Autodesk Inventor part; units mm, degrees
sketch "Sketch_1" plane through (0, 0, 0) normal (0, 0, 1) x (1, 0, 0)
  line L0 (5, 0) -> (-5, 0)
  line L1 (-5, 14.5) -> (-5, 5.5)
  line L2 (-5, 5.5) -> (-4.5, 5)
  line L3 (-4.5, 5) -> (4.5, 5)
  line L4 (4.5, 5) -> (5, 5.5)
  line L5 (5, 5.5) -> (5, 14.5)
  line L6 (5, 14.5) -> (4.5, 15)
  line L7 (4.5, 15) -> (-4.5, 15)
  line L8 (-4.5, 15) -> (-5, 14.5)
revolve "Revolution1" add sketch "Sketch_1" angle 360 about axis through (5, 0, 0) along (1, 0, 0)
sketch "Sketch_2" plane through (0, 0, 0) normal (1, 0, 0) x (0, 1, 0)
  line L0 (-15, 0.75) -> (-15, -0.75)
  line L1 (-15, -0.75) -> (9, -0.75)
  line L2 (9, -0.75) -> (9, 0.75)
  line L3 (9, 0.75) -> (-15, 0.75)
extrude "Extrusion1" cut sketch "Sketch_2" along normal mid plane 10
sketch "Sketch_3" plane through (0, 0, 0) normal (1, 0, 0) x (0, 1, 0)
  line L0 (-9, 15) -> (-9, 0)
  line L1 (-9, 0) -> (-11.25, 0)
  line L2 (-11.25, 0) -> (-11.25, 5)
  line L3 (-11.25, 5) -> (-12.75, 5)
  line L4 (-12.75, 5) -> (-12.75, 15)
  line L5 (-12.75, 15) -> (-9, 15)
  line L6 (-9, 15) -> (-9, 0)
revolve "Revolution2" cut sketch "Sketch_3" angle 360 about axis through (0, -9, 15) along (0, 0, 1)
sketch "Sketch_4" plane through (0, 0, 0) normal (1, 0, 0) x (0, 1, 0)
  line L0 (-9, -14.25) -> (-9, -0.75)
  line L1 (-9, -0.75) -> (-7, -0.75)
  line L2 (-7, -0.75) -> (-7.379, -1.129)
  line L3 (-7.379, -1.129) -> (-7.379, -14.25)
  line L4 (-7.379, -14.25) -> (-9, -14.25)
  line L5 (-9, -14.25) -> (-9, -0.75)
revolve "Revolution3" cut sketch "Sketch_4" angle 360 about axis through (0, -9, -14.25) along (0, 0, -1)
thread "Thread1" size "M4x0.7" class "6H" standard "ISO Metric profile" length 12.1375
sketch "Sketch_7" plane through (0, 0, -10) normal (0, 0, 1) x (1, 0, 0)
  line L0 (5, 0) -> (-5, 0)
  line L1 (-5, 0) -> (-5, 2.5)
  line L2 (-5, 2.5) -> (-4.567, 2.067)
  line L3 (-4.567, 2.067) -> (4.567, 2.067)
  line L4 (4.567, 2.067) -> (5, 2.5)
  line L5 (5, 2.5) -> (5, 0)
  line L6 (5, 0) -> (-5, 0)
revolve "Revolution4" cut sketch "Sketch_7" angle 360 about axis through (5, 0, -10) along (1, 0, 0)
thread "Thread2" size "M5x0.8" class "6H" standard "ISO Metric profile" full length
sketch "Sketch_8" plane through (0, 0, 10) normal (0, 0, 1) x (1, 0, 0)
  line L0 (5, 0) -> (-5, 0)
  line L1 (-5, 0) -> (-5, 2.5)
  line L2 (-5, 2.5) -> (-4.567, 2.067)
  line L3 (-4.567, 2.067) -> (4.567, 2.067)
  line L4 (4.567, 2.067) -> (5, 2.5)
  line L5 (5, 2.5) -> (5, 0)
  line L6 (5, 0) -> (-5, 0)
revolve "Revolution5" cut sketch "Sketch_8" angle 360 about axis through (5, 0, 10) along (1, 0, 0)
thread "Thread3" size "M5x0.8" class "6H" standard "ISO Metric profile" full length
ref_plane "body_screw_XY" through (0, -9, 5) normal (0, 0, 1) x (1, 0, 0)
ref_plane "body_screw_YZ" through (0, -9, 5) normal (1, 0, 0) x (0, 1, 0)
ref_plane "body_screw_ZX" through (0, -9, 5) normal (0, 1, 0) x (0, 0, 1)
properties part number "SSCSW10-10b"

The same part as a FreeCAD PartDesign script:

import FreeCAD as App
import Part
import Sketcher
from FreeCAD import Vector
Q = App.Units.Quantity

doc = App.newDocument("Part")
body = doc.addObject("PartDesign::Body", "Body")

# Sketch on XY plane
sketch1 = body.newObject("Sketcher::SketchObject", "Sketch")
sketch1.AttachmentSupport = (doc.getObject("XY_Plane"), [""])
sketch1.MapMode = "FlatFace"
sketch1.addGeometry(Part.LineSegment(Vector(-4.5, 15, 0), Vector(-5, 14.5, 0)), False)
sketch1.addGeometry(Part.LineSegment(Vector(-5, 14.5, 0), Vector(-5, 5.5, 0)), False)
sketch1.addGeometry(Part.LineSegment(Vector(-5, 5.5, 0), Vector(-4.5, 5, 0)), False)
sketch1.addGeometry(Part.LineSegment(Vector(-4.5, 5, 0), Vector(4.5, 5, 0)), False)
sketch1.addGeometry(Part.LineSegment(Vector(4.5, 5, 0), Vector(5, 5.5, 0)), False)
sketch1.addGeometry(Part.LineSegment(Vector(5, 5.5, 0), Vector(5, 14.5, 0)), False)
sketch1.addGeometry(Part.LineSegment(Vector(5, 14.5, 0), Vector(4.5, 15, 0)), False)
sketch1.addGeometry(Part.LineSegment(Vector(4.5, 15, 0), Vector(-4.5, 15, 0)), False)
sketch1.addConstraint(Sketcher.Constraint("Coincident", 0, 2, 1, 1))
sketch1.addConstraint(Sketcher.Constraint("Coincident", 1, 2, 2, 1))
sketch1.addConstraint(Sketcher.Constraint("Coincident", 2, 2, 3, 1))
sketch1.addConstraint(Sketcher.Constraint("Coincident", 3, 2, 4, 1))
sketch1.addConstraint(Sketcher.Constraint("Coincident", 4, 2, 5, 1))
sketch1.addConstraint(Sketcher.Constraint("Coincident", 5, 2, 6, 1))
sketch1.addConstraint(Sketcher.Constraint("Coincident", 6, 2, 7, 1))
sketch1.addConstraint(Sketcher.Constraint("Coincident", 7, 2, 0, 1))
sketch1.addConstraint(Sketcher.Constraint("Vertical", 1))
sketch1.addConstraint(Sketcher.Constraint("Horizontal", 3))
sketch1.addConstraint(Sketcher.Constraint("Vertical", 5))
sketch1.addConstraint(Sketcher.Constraint("Horizontal", 7))
sketch1.addConstraint(Sketcher.Constraint("Symmetric", 1, 2, 4, 2, -2))
sketch1.addConstraint(Sketcher.Constraint("Perpendicular", 0, 2))
sketch1.addConstraint(Sketcher.Constraint("Perpendicular", 2, 4))
sketch1.addConstraint(Sketcher.Constraint("Perpendicular", 4, 6))
sketch1.addConstraint(Sketcher.Constraint("Horizontal", 0, 2, 5, 2))
sketch1.addConstraint(Sketcher.Constraint("Vertical", 3, 2, 6, 2))
sketch1.addConstraint(Sketcher.Constraint("Vertical", 2, 2, 7, 2))
sketch1.addConstraint(Sketcher.Constraint("Equal", 7, 1))
sketch1.addConstraint(Sketcher.Constraint("DistanceX", 3, 1, 3, 2, 9.0))
sketch1.addConstraint(Sketcher.Constraint("DistanceX", 0, 2, -1, 1, 5.0))
sketch1.addConstraint(Sketcher.Constraint("DistanceY", -1, 1, 2, 2, 5.0))
revolution = body.newObject("PartDesign::Revolution", "Revolution")
revolution.Profile = sketch1
revolution.ReferenceAxis = (sketch1, ["H_Axis"])
revolution.Angle = 360

# Sketch on YZ plane
sketch2 = body.newObject("Sketcher::SketchObject", "Sketch001")
sketch2.AttachmentSupport = (doc.getObject("YZ_Plane"), [""])
sketch2.MapMode = "FlatFace"
sketch2.addGeometry(Part.LineSegment(Vector(9, 0.75, 0), Vector(-15, 0.75, 0)), False)
sketch2.addGeometry(Part.LineSegment(Vector(-15, 0.75, 0), Vector(-15, -0.75, 0)), False)
sketch2.addGeometry(Part.LineSegment(Vector(-15, -0.75, 0), Vector(9, -0.75, 0)), False)
sketch2.addGeometry(Part.LineSegment(Vector(9, -0.75, 0), Vector(9, 0.75, 0)), False)
sketch2.addConstraint(Sketcher.Constraint("Coincident", 0, 2, 1, 1))
sketch2.addConstraint(Sketcher.Constraint("Coincident", 1, 2, 2, 1))
sketch2.addConstraint(Sketcher.Constraint("Coincident", 2, 2, 3, 1))
sketch2.addConstraint(Sketcher.Constraint("Coincident", 3, 2, 0, 1))
sketch2.addConstraint(Sketcher.Constraint("Horizontal", 0))
sketch2.addConstraint(Sketcher.Constraint("Vertical", 1))
sketch2.addConstraint(Sketcher.Constraint("Horizontal", 2))
sketch2.addConstraint(Sketcher.Constraint("Vertical", 3))
sketch2.addConstraint(Sketcher.Constraint("DistanceX", 0, 2, 0, 1, 24.0))
sketch2.addConstraint(Sketcher.Constraint("DistanceY", 1, 2, 1, 1, 1.5))
sketch2.addConstraint(Sketcher.Constraint("DistanceX", 0, 2, -1, 1, 15.0))
sketch2.addConstraint(Sketcher.Constraint("DistanceY", -1, 1, 0, 2, 0.75))
pocket1 = body.newObject("PartDesign::Pocket", "Pocket")
pocket1.Profile = sketch2
pocket1.Length = 10
pocket1.Midplane = True

# Sketch on YZ plane
sketch3 = body.newObject("Sketcher::SketchObject", "Sketch002")
sketch3.AttachmentSupport = (doc.getObject("YZ_Plane"), [""])
sketch3.MapMode = "FlatFace"
sketch3.addGeometry(Part.LineSegment(Vector(-9, 0, 0), Vector(-9, 15, 0)), False)
sketch3.addGeometry(Part.LineSegment(Vector(-9, 15, 0), Vector(-12.75, 15, 0)), False)
sketch3.addGeometry(Part.LineSegment(Vector(-12.75, 15, 0), Vector(-12.75, 5, 0)), False)
sketch3.addGeometry(Part.LineSegment(Vector(-12.75, 5, 0), Vector(-11.25, 5, 0)), False)
sketch3.addGeometry(Part.LineSegment(Vector(-11.25, 5, 0), Vector(-11.25, 0, 0)), False)
sketch3.addGeometry(Part.LineSegment(Vector(-11.25, 0, 0), Vector(-9, 0, 0)), False)
sketch3.addGeometry(Part.LineSegment(Vector(-9, 0, 0), Vector(-9, 15, 0)), True)  # axis
sketch3.addConstraint(Sketcher.Constraint("Coincident", 0, 2, 1, 1))
sketch3.addConstraint(Sketcher.Constraint("Coincident", 1, 2, 2, 1))
sketch3.addConstraint(Sketcher.Constraint("Coincident", 2, 2, 3, 1))
sketch3.addConstraint(Sketcher.Constraint("Coincident", 3, 2, 4, 1))
sketch3.addConstraint(Sketcher.Constraint("Coincident", 4, 2, 5, 1))
sketch3.addConstraint(Sketcher.Constraint("Coincident", 5, 2, 0, 1))
sketch3.addConstraint(Sketcher.Constraint("Vertical", 0))
sketch3.addConstraint(Sketcher.Constraint("Horizontal", 1))
sketch3.addConstraint(Sketcher.Constraint("Vertical", 2))
sketch3.addConstraint(Sketcher.Constraint("Horizontal", 3))
sketch3.addConstraint(Sketcher.Constraint("Vertical", 4))
sketch3.addConstraint(Sketcher.Constraint("Horizontal", 5))
sketch3.addConstraint(Sketcher.Constraint("Vertical", 6))
sketch3.addConstraint(Sketcher.Constraint("Coincident", 6, 1, 5, 2))
sketch3.addConstraint(Sketcher.Constraint("PointOnObject", 4, 2, -1))
sketch3.addConstraint(Sketcher.Constraint("Horizontal", 1, 2, 6, 2))
sketch3.addConstraint(Sketcher.Constraint("DistanceY", 0, 1, 0, 2, 15.0))
sketch3.addConstraint(Sketcher.Constraint("DistanceY", 2, 2, 2, 1, 10.0))
sketch3.addConstraint(Sketcher.Constraint("DistanceX", 3, 1, 3, 2, 1.5))
sketch3.addConstraint(Sketcher.Constraint("DistanceX", 0, 2, -1, 1, 9.0))
sketch3.addConstraint(Sketcher.Constraint("DistanceX", 1, 2, 1, 1, 3.75))
groove = body.newObject("PartDesign::Groove", "Groove")
groove.Profile = sketch3
groove.ReferenceAxis = (sketch3, ["Axis0"])
groove.Angle = 360

# Sketch on YZ plane
sketch4 = body.newObject("Sketcher::SketchObject", "Sketch003")
sketch4.AttachmentSupport = (doc.getObject("YZ_Plane"), [""])
sketch4.MapMode = "FlatFace"
sketch4.addGeometry(Part.LineSegment(Vector(-9, -0.75, 0), Vector(-9, -14.25, 0)), False)
sketch4.addGeometry(Part.LineSegment(Vector(-9, -14.25, 0), Vector(-7.379, -14.25, 0)), False)
sketch4.addGeometry(Part.LineSegment(Vector(-7.379, -14.25, 0), Vector(-7.379, -1.129, 0)), False)
sketch4.addGeometry(Part.LineSegment(Vector(-7.379, -1.129, 0), Vector(-7, -0.75, 0)), False)
sketch4.addGeometry(Part.LineSegment(Vector(-7, -0.75, 0), Vector(-9, -0.75, 0)), False)
sketch4.addGeometry(Part.LineSegment(Vector(-9, -0.75, 0), Vector(-9, -14.25, 0)), True)  # axis
sketch4.addConstraint(Sketcher.Constraint("Coincident", 0, 2, 1, 1))
sketch4.addConstraint(Sketcher.Constraint("Coincident", 1, 2, 2, 1))
sketch4.addConstraint(Sketcher.Constraint("Coincident", 2, 2, 3, 1))
sketch4.addConstraint(Sketcher.Constraint("Coincident", 3, 2, 4, 1))
sketch4.addConstraint(Sketcher.Constraint("Coincident", 4, 2, 0, 1))
sketch4.addConstraint(Sketcher.Constraint("Vertical", 0))
sketch4.addConstraint(Sketcher.Constraint("Horizontal", 1))
sketch4.addConstraint(Sketcher.Constraint("Vertical", 2))
sketch4.addConstraint(Sketcher.Constraint("Horizontal", 4))
sketch4.addConstraint(Sketcher.Constraint("Vertical", 5))
sketch4.addConstraint(Sketcher.Constraint("Coincident", 5, 1, 4, 2))
sketch4.addConstraint(Sketcher.Constraint("Horizontal", 1, 2, 5, 2))
sketch4.addConstraint(Sketcher.Constraint("DistanceX", 4, 2, 4, 1, 2.0))
sketch4.addConstraint(Sketcher.Constraint("Angle", 3, Q("45 deg")))
sketch4.addConstraint(Sketcher.Constraint("DistanceY", 0, 2, 0, 1, 13.5))
sketch4.addConstraint(Sketcher.Constraint("DistanceX", 0, 2, -1, 1, 9.0))
sketch4.addConstraint(Sketcher.Constraint("DistanceX", 1, 1, 1, 2, 1.621))
sketch4.addConstraint(Sketcher.Constraint("DistanceY", 0, 2, -1, 1, 14.25))
groove2 = body.newObject("PartDesign::Groove", "Groove001")
groove2.Profile = sketch4
groove2.ReferenceAxis = (sketch4, ["Axis0"])
groove2.Angle = 360

# Sketch on XY plane
sketch5 = body.newObject("Sketcher::SketchObject", "Sketch004")
sketch5.AttachmentSupport = (doc.getObject("XY_Plane"), [""])
sketch5.MapMode = "FlatFace"
sketch5.AttachmentOffset = App.Placement(Vector(0, 0, -10), App.Rotation())
sketch5.addGeometry(Part.LineSegment(Vector(-5, 0, 0), Vector(5, 0, 0)), False)
sketch5.addGeometry(Part.LineSegment(Vector(5, 0, 0), Vector(5, 2.5, 0)), False)
sketch5.addGeometry(Part.LineSegment(Vector(5, 2.5, 0), Vector(4.567, 2.067, 0)), False)
sketch5.addGeometry(Part.LineSegment(Vector(4.567, 2.067, 0), Vector(-4.567, 2.067, 0)), False)
sketch5.addGeometry(Part.LineSegment(Vector(-4.567, 2.067, 0), Vector(-5, 2.5, 0)), False)
sketch5.addGeometry(Part.LineSegment(Vector(-5, 2.5, 0), Vector(-5, 0, 0)), False)
sketch5.addConstraint(Sketcher.Constraint("Coincident", 0, 2, 1, 1))
sketch5.addConstraint(Sketcher.Constraint("Coincident", 1, 2, 2, 1))
sketch5.addConstraint(Sketcher.Constraint("Coincident", 2, 2, 3, 1))
sketch5.addConstraint(Sketcher.Constraint("Coincident", 3, 2, 4, 1))
sketch5.addConstraint(Sketcher.Constraint("Coincident", 4, 2, 5, 1))
sketch5.addConstraint(Sketcher.Constraint("Coincident", 5, 2, 0, 1))
sketch5.addConstraint(Sketcher.Constraint("Horizontal", 0))
sketch5.addConstraint(Sketcher.Constraint("Vertical", 1))
sketch5.addConstraint(Sketcher.Constraint("Horizontal", 3))
sketch5.addConstraint(Sketcher.Constraint("Vertical", 5))
sketch5.addConstraint(Sketcher.Constraint("Symmetric", 0, 2, 5, 2, -1, 1))
sketch5.addConstraint(Sketcher.Constraint("Perpendicular", 2, 4))
sketch5.addConstraint(Sketcher.Constraint("Horizontal", 1, 2, 4, 2))
sketch5.addConstraint(Sketcher.Constraint("Equal", 2, 4))
sketch5.addConstraint(Sketcher.Constraint("DistanceX", 0, 1, 0, 2, 10.0))
sketch5.addConstraint(Sketcher.Constraint("DistanceY", 1, 1, 1, 2, 2.5))
sketch5.addConstraint(Sketcher.Constraint("DistanceX", 3, 2, 3, 1, 9.134))
groove3 = body.newObject("PartDesign::Groove", "Groove002")
groove3.Profile = sketch5
groove3.ReferenceAxis = (sketch5, ["H_Axis"])
groove3.Angle = 360

# Sketch on XY plane
sketch6 = body.newObject("Sketcher::SketchObject", "Sketch005")
sketch6.AttachmentSupport = (doc.getObject("XY_Plane"), [""])
sketch6.MapMode = "FlatFace"
sketch6.AttachmentOffset = App.Placement(Vector(0, 0, 10), App.Rotation())
sketch6.addGeometry(Part.LineSegment(Vector(-5, 0, 0), Vector(5, 0, 0)), False)
sketch6.addGeometry(Part.LineSegment(Vector(5, 0, 0), Vector(5, 2.5, 0)), False)
sketch6.addGeometry(Part.LineSegment(Vector(5, 2.5, 0), Vector(4.567, 2.067, 0)), False)
sketch6.addGeometry(Part.LineSegment(Vector(4.567, 2.067, 0), Vector(-4.567, 2.067, 0)), False)
sketch6.addGeometry(Part.LineSegment(Vector(-4.567, 2.067, 0), Vector(-5, 2.5, 0)), False)
sketch6.addGeometry(Part.LineSegment(Vector(-5, 2.5, 0), Vector(-5, 0, 0)), False)
sketch6.addConstraint(Sketcher.Constraint("Coincident", 0, 2, 1, 1))
sketch6.addConstraint(Sketcher.Constraint("Coincident", 1, 2, 2, 1))
sketch6.addConstraint(Sketcher.Constraint("Coincident", 2, 2, 3, 1))
sketch6.addConstraint(Sketcher.Constraint("Coincident", 3, 2, 4, 1))
sketch6.addConstraint(Sketcher.Constraint("Coincident", 4, 2, 5, 1))
sketch6.addConstraint(Sketcher.Constraint("Coincident", 5, 2, 0, 1))
sketch6.addConstraint(Sketcher.Constraint("Horizontal", 0))
sketch6.addConstraint(Sketcher.Constraint("Vertical", 1))
sketch6.addConstraint(Sketcher.Constraint("Horizontal", 3))
sketch6.addConstraint(Sketcher.Constraint("Vertical", 5))
sketch6.addConstraint(Sketcher.Constraint("Symmetric", 0, 2, 5, 2, -1, 1))
sketch6.addConstraint(Sketcher.Constraint("Perpendicular", 2, 4))
sketch6.addConstraint(Sketcher.Constraint("Horizontal", 1, 2, 4, 2))
sketch6.addConstraint(Sketcher.Constraint("Equal", 2, 4))
sketch6.addConstraint(Sketcher.Constraint("DistanceX", 0, 1, 0, 2, 10.0))
sketch6.addConstraint(Sketcher.Constraint("DistanceY", 1, 1, 1, 2, 2.5))
sketch6.addConstraint(Sketcher.Constraint("DistanceX", 3, 2, 3, 1, 9.134))
groove4 = body.newObject("PartDesign::Groove", "Groove003")
groove4.Profile = sketch6
groove4.ReferenceAxis = (sketch6, ["H_Axis"])
groove4.Angle = 360

doc.recompute()
